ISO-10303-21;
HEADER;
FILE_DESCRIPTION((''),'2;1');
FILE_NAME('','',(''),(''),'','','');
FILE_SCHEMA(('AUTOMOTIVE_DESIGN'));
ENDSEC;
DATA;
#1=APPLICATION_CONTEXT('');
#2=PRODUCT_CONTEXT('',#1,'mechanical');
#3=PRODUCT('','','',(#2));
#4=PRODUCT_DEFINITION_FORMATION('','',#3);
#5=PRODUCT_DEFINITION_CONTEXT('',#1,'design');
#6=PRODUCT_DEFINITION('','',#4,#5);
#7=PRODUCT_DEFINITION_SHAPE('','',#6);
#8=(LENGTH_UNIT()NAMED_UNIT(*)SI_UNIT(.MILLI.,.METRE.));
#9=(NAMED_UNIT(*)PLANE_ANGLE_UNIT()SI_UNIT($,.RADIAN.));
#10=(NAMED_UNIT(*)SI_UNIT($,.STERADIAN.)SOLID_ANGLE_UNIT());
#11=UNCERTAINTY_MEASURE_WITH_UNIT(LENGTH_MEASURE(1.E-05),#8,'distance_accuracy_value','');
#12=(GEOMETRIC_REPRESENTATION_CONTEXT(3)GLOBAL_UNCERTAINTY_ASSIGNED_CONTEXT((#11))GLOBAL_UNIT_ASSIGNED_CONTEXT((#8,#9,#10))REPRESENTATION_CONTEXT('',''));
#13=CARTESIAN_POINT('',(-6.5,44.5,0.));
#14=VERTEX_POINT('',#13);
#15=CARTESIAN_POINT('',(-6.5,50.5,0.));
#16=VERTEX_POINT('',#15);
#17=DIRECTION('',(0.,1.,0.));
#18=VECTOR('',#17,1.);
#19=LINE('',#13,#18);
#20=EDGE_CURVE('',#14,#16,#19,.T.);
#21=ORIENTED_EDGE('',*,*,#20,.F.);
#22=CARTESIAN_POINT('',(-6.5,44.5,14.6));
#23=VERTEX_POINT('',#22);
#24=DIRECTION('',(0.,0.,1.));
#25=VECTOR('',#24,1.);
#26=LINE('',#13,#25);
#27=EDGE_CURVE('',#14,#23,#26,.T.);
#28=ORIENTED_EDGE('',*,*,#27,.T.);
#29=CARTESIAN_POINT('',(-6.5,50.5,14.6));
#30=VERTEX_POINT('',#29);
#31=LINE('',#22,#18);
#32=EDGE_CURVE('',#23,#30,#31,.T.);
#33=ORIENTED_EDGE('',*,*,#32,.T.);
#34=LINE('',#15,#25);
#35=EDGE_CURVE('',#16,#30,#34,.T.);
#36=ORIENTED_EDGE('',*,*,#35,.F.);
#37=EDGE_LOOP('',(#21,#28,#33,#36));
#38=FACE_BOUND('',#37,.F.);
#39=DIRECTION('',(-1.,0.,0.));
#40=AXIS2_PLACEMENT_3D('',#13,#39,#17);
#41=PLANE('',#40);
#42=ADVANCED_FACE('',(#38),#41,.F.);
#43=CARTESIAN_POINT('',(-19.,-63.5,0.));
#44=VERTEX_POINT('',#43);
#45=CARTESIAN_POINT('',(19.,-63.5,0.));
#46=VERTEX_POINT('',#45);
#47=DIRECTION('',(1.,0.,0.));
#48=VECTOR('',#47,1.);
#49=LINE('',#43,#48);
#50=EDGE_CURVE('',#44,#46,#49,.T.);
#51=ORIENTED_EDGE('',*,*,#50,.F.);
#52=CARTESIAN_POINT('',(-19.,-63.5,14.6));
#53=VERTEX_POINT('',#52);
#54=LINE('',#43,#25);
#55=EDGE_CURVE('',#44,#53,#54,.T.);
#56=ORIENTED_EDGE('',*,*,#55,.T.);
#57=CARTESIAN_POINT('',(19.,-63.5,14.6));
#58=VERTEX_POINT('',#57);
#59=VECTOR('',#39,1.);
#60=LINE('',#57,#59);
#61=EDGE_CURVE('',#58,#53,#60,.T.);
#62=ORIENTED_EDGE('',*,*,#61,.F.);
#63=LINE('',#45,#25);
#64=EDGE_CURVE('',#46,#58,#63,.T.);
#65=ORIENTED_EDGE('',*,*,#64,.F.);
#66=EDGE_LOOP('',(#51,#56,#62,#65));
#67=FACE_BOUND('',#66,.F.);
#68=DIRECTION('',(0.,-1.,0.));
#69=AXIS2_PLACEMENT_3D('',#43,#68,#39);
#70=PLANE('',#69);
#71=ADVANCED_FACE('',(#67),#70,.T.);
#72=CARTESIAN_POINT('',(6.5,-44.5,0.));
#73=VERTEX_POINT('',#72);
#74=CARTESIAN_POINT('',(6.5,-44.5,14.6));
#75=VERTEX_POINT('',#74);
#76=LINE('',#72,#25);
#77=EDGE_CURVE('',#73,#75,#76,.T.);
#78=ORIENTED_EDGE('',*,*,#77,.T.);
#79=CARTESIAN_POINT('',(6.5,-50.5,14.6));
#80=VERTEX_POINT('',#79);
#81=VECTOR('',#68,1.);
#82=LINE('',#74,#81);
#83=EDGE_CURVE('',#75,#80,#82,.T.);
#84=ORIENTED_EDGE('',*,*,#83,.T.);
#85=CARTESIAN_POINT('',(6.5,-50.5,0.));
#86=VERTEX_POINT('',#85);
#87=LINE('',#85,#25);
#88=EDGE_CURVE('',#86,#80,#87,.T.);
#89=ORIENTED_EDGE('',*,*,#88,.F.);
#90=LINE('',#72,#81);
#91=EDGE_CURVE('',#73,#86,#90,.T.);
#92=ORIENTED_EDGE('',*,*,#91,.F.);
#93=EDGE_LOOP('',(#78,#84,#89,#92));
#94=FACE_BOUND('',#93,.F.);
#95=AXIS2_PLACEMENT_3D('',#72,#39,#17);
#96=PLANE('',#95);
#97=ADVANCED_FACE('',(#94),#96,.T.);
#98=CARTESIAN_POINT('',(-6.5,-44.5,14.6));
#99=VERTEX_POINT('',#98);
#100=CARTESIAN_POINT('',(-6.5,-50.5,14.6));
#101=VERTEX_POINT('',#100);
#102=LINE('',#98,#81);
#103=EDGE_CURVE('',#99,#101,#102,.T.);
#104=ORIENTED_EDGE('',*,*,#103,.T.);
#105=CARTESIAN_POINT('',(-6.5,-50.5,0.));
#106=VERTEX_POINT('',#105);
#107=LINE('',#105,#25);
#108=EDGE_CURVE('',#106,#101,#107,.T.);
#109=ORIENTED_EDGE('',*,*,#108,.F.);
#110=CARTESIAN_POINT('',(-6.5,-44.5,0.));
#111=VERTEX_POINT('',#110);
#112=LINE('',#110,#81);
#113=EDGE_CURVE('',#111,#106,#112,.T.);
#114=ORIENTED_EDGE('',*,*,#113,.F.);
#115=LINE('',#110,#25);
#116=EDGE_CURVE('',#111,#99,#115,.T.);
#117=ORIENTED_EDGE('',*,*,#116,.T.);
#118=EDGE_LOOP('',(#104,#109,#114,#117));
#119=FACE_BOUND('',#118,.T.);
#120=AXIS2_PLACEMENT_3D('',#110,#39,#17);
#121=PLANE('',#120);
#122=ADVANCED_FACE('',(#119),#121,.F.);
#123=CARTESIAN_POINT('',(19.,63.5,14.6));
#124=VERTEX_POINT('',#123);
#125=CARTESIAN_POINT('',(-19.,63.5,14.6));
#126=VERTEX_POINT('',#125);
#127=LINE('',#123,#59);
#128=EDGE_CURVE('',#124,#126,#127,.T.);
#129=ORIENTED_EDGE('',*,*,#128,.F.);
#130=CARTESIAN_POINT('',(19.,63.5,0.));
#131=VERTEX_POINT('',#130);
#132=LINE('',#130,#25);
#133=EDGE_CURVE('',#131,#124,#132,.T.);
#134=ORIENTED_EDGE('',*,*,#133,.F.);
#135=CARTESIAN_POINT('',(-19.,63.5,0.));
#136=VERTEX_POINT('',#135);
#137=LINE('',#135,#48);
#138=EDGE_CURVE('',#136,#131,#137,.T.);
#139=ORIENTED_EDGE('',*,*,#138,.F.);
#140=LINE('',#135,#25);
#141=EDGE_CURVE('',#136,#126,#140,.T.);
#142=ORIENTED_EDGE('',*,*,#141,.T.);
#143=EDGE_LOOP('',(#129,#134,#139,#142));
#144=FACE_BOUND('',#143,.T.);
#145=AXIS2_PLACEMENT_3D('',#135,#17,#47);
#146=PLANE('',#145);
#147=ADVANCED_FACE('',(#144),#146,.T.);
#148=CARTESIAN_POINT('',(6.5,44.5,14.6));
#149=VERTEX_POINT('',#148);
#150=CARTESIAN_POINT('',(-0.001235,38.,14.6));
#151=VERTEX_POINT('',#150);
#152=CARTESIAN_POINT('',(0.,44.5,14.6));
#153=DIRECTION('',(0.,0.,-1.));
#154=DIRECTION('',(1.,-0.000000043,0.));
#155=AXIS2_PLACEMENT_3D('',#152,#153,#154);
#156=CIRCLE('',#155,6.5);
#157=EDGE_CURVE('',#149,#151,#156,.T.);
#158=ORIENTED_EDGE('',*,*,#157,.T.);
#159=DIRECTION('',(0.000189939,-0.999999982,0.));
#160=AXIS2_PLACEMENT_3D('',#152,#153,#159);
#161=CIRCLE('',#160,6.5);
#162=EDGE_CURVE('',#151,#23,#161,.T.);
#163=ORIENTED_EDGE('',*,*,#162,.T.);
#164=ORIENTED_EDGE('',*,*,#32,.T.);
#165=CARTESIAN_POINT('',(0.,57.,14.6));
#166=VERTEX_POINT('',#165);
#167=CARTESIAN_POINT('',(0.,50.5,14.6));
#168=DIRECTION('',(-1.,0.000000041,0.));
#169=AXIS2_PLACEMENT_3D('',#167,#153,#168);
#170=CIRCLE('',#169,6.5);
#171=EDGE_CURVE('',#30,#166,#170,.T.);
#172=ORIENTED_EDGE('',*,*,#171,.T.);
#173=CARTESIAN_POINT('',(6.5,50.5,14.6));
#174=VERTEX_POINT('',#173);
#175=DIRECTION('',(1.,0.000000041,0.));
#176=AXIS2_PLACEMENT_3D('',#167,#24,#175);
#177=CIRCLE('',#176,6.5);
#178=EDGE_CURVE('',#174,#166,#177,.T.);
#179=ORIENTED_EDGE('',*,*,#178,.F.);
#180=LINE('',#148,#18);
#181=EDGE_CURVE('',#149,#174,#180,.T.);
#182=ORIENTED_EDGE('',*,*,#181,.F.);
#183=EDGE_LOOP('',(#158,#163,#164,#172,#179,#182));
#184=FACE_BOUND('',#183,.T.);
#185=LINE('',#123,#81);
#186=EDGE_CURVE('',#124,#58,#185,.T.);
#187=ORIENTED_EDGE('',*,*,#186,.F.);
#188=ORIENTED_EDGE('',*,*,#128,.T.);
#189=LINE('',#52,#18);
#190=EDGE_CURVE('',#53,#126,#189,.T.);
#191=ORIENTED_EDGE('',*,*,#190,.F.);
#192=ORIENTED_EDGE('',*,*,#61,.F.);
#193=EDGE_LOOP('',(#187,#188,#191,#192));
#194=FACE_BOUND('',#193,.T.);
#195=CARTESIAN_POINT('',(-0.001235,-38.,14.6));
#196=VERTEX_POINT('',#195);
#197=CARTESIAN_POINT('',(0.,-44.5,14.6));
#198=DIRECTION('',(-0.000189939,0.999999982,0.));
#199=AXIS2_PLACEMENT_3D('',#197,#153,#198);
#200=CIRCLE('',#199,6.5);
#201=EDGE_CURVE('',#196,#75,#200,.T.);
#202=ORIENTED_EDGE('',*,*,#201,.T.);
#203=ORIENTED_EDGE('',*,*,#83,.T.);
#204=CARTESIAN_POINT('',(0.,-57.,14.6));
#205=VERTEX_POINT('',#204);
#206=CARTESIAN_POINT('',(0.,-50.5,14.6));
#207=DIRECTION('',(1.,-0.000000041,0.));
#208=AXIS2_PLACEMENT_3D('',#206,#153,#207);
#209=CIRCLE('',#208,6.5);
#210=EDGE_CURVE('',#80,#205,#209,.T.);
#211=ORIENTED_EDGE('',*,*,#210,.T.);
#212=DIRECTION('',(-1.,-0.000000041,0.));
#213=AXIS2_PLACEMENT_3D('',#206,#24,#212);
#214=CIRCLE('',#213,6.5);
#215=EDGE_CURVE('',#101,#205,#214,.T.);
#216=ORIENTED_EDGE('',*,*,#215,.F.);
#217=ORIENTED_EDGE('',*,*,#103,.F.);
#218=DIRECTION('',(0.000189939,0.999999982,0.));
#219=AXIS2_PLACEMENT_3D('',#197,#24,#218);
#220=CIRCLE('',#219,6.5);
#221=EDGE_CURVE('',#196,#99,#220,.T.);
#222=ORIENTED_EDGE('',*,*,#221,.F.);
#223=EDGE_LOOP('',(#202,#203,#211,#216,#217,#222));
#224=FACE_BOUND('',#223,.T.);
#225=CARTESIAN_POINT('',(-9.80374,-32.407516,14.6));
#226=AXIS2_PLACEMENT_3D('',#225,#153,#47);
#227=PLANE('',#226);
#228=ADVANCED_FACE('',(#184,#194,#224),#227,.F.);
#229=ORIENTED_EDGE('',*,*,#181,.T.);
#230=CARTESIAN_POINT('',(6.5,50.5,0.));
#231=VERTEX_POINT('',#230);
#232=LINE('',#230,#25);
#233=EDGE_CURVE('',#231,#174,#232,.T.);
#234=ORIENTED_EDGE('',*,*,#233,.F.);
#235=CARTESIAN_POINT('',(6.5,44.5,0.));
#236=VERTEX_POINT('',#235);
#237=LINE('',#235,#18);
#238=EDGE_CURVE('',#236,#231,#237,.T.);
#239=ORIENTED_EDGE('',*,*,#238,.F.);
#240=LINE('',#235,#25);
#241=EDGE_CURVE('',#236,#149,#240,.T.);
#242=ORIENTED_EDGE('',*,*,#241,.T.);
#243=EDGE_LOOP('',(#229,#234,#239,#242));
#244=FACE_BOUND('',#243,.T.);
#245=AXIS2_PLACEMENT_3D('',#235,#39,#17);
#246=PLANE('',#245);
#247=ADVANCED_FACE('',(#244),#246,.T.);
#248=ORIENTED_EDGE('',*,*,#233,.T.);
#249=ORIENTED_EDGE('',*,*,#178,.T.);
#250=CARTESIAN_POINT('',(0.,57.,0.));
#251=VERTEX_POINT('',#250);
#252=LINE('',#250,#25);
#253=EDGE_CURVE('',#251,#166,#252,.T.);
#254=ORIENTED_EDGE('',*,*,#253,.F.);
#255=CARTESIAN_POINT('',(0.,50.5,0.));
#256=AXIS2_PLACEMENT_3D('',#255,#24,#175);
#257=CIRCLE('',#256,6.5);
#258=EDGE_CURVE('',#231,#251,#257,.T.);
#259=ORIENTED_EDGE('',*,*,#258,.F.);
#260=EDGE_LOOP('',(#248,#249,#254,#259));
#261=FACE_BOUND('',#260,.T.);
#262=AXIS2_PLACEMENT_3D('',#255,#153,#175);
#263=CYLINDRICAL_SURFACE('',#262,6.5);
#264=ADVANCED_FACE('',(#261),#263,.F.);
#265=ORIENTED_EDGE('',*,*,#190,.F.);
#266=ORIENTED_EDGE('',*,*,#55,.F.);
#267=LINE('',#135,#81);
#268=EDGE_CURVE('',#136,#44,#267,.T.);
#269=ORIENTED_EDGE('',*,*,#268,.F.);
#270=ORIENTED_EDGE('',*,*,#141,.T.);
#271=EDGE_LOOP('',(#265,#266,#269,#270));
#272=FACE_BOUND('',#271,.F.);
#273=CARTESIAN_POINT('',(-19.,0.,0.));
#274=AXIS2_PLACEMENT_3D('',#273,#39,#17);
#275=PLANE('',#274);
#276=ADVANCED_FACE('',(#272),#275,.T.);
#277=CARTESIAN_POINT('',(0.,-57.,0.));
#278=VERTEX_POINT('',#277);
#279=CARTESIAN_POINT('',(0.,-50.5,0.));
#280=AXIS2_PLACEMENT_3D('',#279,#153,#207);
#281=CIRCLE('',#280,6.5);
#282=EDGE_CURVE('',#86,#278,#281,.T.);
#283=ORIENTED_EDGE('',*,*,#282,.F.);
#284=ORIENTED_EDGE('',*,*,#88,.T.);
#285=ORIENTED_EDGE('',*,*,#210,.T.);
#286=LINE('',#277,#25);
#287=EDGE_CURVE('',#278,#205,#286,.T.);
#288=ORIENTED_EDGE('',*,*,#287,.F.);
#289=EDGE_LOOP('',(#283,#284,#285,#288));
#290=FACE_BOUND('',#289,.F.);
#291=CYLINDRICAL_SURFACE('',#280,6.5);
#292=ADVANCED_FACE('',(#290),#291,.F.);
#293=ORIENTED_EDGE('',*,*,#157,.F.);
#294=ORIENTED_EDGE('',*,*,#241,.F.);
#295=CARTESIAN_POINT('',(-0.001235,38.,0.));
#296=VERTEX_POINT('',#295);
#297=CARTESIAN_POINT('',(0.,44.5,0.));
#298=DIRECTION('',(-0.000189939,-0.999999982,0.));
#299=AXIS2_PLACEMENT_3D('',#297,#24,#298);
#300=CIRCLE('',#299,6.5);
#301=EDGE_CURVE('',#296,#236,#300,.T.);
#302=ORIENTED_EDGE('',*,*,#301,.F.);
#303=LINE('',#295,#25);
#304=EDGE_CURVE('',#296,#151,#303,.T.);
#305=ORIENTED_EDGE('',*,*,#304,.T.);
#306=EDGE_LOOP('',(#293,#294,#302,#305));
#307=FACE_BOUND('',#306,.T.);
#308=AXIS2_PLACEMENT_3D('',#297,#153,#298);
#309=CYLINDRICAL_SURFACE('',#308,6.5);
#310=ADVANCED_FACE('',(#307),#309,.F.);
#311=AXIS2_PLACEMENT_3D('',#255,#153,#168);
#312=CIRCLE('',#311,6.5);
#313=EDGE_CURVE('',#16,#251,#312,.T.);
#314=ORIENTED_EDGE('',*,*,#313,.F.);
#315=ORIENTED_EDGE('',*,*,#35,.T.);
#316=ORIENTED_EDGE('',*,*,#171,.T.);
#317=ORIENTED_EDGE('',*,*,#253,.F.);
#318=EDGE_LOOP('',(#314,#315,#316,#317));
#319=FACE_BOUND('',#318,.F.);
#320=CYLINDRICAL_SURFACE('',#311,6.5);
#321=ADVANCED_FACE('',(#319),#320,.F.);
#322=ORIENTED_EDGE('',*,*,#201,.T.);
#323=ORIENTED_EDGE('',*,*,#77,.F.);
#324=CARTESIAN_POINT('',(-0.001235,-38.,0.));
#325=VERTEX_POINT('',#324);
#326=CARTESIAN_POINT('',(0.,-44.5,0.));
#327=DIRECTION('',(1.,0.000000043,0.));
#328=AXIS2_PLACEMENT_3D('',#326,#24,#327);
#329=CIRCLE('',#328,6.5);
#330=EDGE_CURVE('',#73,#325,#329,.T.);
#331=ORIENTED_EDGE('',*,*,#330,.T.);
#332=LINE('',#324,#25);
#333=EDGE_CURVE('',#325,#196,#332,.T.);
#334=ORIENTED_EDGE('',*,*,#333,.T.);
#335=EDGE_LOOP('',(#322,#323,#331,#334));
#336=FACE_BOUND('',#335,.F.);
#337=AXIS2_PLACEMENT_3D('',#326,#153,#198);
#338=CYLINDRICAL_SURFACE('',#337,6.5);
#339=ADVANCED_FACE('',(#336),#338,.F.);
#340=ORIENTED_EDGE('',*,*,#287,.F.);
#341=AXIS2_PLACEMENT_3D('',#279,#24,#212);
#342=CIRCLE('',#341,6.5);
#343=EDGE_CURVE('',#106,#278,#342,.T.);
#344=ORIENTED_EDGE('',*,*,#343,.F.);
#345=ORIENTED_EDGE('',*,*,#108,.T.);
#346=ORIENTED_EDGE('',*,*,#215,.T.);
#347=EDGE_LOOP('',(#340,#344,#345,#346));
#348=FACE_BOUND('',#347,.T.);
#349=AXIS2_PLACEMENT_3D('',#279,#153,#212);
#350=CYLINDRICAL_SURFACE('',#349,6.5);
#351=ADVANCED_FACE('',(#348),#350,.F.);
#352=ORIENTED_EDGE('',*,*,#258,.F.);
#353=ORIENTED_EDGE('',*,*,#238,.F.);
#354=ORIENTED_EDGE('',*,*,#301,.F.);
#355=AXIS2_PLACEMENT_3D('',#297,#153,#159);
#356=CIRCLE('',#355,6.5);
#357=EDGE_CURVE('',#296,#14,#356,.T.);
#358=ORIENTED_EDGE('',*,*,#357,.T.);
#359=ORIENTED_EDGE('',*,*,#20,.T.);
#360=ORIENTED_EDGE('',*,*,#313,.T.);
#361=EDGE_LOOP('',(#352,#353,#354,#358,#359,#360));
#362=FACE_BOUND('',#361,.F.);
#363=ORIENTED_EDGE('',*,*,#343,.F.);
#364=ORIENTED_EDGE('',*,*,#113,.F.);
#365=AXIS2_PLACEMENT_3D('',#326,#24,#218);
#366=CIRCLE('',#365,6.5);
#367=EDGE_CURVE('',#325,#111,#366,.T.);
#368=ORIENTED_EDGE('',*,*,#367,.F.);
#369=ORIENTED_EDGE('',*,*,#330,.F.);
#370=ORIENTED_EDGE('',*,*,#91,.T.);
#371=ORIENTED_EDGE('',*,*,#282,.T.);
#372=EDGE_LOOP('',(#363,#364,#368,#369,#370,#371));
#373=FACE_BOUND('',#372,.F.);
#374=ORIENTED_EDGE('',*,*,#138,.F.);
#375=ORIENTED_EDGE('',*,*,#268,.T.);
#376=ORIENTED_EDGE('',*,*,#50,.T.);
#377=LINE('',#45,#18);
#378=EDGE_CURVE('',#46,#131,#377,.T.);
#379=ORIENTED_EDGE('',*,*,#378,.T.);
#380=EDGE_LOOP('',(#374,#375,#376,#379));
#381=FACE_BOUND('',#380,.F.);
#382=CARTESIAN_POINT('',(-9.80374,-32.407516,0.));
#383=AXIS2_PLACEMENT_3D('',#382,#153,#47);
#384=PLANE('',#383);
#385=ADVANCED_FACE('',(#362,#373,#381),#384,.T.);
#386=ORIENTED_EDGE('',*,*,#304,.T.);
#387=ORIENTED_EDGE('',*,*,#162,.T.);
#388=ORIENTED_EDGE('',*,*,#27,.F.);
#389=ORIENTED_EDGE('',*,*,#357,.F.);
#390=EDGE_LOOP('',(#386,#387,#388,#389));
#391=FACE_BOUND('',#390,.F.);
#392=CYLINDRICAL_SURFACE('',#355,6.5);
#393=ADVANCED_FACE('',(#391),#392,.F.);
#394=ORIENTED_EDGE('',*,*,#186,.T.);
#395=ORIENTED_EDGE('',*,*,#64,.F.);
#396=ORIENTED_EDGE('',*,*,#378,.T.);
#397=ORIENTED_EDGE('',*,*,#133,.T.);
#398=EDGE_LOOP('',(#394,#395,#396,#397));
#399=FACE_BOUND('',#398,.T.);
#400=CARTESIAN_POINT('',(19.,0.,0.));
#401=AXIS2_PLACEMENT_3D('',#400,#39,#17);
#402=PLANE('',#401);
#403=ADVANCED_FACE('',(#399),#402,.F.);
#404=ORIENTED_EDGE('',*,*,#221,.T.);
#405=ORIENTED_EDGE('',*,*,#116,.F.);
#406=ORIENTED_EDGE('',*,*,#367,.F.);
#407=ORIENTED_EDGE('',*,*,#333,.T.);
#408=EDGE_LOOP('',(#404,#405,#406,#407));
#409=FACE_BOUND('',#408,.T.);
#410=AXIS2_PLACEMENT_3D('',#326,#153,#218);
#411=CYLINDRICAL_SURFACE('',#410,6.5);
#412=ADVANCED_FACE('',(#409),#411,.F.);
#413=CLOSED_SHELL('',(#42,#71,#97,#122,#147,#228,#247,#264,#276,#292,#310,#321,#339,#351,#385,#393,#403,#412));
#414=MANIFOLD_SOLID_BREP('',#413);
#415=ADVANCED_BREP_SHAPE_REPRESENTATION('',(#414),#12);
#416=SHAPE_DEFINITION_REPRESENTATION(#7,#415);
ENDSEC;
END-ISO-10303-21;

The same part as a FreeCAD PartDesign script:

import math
import FreeCAD as App
import Part
import Sketcher

V = App.Vector

doc = App.newDocument("Part")
body = doc.addObject("PartDesign::Body", "Body")

# Sketch on XY plane
sketch1 = body.newObject("Sketcher::SketchObject", "Sketch")
sketch1.AttachmentSupport = (doc.getObject("XY_Plane"), [""])
sketch1.MapMode = "FlatFace"
sketch1.addGeometry([
    Part.LineSegment(V(0, 0, 0), V(19, 0, 0)),  # 0
    Part.LineSegment(V(19, 0, 0), V(19, 64, 0)),  # 1
    Part.LineSegment(V(19, 64, 0), V(0, 64, 0)),  # 2
    Part.LineSegment(V(0, 64, 0), V(0, 57, 0)),  # 3
    Part.ArcOfCircle(Part.Circle(V(0, 50, 0), V(0, 0, 1), 7), math.radians(0), math.radians(90)),  # 4
    Part.LineSegment(V(6, 50, 0), V(6, 44, 0)),  # 5
    Part.ArcOfCircle(Part.Circle(V(0, 45, 0), V(0, 0, 1), 7), math.radians(-90), math.radians(0)),  # 6
    Part.LineSegment(V(0, 38, 0), V(0, 0, 0)),  # 7
], False)
sketch1.addConstraint([
    Sketcher.Constraint("Coincident", 0, 2, 1, 1),
    Sketcher.Constraint("Coincident", 1, 2, 2, 1),
    Sketcher.Constraint("Coincident", 2, 2, 3, 1),
    Sketcher.Constraint("Coincident", 3, 2, 4, 2),
    Sketcher.Constraint("Tangent", 4, 1, 5, 1),
    Sketcher.Constraint("Tangent", 5, 2, 6, 2),
    Sketcher.Constraint("Coincident", 6, 1, 7, 1),
    Sketcher.Constraint("Coincident", 7, 2, 0, 1),
    Sketcher.Constraint("Horizontal", 0),
    Sketcher.Constraint("Vertical", 1),
    Sketcher.Constraint("Horizontal", 2),
    Sketcher.Constraint("Vertical", 3),
    Sketcher.Constraint("Vertical", 5),
    Sketcher.Constraint("Coincident", 7, 2, -1, 1),
    Sketcher.Constraint("Equal", 4, 6),
    Sketcher.Constraint("PointOnObject", 4, 3, -2),
    Sketcher.Constraint("PointOnObject", 2, 2, -2),
    Sketcher.Constraint("Radius", 4, 6.5),
    Sketcher.Constraint("DistanceX", 0, 1, 0, 2, 19.0),
    Sketcher.Constraint("DistanceY", 5, 2, 5, 1, 6.0),
    Sketcher.Constraint("Distance", 7, 38.0),
    Sketcher.Constraint("DistanceY", 1, 1, 1, 2, 63.5),
    Sketcher.Constraint("DistanceX", 6, 1, -1, 1, 0.001235),
])
pad1 = body.newObject("PartDesign::Pad", "Pad")
pad1.Profile = sketch1
pad1.Length = 14.6

# Sketch on XY plane
sketch2 = body.newObject("Sketcher::SketchObject", "Sketch001")
sketch2.AttachmentSupport = (doc.getObject("XY_Plane"), [""])
sketch2.MapMode = "FlatFace"
sketch2.addGeometry([
    Part.LineSegment(V(0, 0, 0), V(-19, 0, 0)),  # 0
    Part.LineSegment(V(-19, 0, 0), V(-19, 64, 0)),  # 1
    Part.LineSegment(V(-19, 64, 0), V(0, 64, 0)),  # 2
    Part.LineSegment(V(0, 64, 0), V(0, 57, 0)),  # 3
    Part.ArcOfCircle(Part.Circle(V(0, 50, 0), V(0, 0, 1), 7), math.radians(90), math.radians(180)),  # 4
    Part.LineSegment(V(-6, 50, 0), V(-6, 44, 0)),  # 5
    Part.ArcOfCircle(Part.Circle(V(0, 45, 0), V(0, 0, 1), 7), math.radians(-180), math.radians(-90)),  # 6
    Part.LineSegment(V(0, 38, 0), V(0, 0, 0)),  # 7
], False)
sketch2.addConstraint([
    Sketcher.Constraint("Coincident", 0, 2, 1, 1),
    Sketcher.Constraint("Coincident", 1, 2, 2, 1),
    Sketcher.Constraint("Coincident", 2, 2, 3, 1),
    Sketcher.Constraint("Coincident", 3, 2, 4, 1),
    Sketcher.Constraint("Tangent", 4, 2, 5, 1),
    Sketcher.Constraint("Tangent", 5, 2, 6, 1),
    Sketcher.Constraint("Coincident", 6, 2, 7, 1),
    Sketcher.Constraint("Coincident", 7, 2, 0, 1),
    Sketcher.Constraint("Horizontal", 0),
    Sketcher.Constraint("Vertical", 1),
    Sketcher.Constraint("Horizontal", 2),
    Sketcher.Constraint("Vertical", 3),
    Sketcher.Constraint("Vertical", 5),
    Sketcher.Constraint("Coincident", 7, 2, -1, 1),
    Sketcher.Constraint("Equal", 4, 6),
    Sketcher.Constraint("PointOnObject", 4, 3, -2),
    Sketcher.Constraint("PointOnObject", 2, 2, -2),
    Sketcher.Constraint("Radius", 4, 6.5),
    Sketcher.Constraint("DistanceX", 0, 2, 0, 1, 19.0),
    Sketcher.Constraint("DistanceY", 5, 2, 5, 1, 6.0),
    Sketcher.Constraint("Distance", 7, 38.0),
    Sketcher.Constraint("DistanceY", 1, 1, 1, 2, 63.5),
    Sketcher.Constraint("DistanceX", -1, 1, 6, 2, 0.001235),
])
pad2 = body.newObject("PartDesign::Pad", "Pad001")
pad2.Profile = sketch2
pad2.Length = 14.6
doc.recompute()

mirrored = body.newObject("PartDesign::Mirrored", "Mirrored")
mirrored.Originals = [pad1, pad2]
mirrored.MirrorPlane = (doc.getObject("XZ_Plane"), [""])
body.Tip = mirrored

doc.recompute()
